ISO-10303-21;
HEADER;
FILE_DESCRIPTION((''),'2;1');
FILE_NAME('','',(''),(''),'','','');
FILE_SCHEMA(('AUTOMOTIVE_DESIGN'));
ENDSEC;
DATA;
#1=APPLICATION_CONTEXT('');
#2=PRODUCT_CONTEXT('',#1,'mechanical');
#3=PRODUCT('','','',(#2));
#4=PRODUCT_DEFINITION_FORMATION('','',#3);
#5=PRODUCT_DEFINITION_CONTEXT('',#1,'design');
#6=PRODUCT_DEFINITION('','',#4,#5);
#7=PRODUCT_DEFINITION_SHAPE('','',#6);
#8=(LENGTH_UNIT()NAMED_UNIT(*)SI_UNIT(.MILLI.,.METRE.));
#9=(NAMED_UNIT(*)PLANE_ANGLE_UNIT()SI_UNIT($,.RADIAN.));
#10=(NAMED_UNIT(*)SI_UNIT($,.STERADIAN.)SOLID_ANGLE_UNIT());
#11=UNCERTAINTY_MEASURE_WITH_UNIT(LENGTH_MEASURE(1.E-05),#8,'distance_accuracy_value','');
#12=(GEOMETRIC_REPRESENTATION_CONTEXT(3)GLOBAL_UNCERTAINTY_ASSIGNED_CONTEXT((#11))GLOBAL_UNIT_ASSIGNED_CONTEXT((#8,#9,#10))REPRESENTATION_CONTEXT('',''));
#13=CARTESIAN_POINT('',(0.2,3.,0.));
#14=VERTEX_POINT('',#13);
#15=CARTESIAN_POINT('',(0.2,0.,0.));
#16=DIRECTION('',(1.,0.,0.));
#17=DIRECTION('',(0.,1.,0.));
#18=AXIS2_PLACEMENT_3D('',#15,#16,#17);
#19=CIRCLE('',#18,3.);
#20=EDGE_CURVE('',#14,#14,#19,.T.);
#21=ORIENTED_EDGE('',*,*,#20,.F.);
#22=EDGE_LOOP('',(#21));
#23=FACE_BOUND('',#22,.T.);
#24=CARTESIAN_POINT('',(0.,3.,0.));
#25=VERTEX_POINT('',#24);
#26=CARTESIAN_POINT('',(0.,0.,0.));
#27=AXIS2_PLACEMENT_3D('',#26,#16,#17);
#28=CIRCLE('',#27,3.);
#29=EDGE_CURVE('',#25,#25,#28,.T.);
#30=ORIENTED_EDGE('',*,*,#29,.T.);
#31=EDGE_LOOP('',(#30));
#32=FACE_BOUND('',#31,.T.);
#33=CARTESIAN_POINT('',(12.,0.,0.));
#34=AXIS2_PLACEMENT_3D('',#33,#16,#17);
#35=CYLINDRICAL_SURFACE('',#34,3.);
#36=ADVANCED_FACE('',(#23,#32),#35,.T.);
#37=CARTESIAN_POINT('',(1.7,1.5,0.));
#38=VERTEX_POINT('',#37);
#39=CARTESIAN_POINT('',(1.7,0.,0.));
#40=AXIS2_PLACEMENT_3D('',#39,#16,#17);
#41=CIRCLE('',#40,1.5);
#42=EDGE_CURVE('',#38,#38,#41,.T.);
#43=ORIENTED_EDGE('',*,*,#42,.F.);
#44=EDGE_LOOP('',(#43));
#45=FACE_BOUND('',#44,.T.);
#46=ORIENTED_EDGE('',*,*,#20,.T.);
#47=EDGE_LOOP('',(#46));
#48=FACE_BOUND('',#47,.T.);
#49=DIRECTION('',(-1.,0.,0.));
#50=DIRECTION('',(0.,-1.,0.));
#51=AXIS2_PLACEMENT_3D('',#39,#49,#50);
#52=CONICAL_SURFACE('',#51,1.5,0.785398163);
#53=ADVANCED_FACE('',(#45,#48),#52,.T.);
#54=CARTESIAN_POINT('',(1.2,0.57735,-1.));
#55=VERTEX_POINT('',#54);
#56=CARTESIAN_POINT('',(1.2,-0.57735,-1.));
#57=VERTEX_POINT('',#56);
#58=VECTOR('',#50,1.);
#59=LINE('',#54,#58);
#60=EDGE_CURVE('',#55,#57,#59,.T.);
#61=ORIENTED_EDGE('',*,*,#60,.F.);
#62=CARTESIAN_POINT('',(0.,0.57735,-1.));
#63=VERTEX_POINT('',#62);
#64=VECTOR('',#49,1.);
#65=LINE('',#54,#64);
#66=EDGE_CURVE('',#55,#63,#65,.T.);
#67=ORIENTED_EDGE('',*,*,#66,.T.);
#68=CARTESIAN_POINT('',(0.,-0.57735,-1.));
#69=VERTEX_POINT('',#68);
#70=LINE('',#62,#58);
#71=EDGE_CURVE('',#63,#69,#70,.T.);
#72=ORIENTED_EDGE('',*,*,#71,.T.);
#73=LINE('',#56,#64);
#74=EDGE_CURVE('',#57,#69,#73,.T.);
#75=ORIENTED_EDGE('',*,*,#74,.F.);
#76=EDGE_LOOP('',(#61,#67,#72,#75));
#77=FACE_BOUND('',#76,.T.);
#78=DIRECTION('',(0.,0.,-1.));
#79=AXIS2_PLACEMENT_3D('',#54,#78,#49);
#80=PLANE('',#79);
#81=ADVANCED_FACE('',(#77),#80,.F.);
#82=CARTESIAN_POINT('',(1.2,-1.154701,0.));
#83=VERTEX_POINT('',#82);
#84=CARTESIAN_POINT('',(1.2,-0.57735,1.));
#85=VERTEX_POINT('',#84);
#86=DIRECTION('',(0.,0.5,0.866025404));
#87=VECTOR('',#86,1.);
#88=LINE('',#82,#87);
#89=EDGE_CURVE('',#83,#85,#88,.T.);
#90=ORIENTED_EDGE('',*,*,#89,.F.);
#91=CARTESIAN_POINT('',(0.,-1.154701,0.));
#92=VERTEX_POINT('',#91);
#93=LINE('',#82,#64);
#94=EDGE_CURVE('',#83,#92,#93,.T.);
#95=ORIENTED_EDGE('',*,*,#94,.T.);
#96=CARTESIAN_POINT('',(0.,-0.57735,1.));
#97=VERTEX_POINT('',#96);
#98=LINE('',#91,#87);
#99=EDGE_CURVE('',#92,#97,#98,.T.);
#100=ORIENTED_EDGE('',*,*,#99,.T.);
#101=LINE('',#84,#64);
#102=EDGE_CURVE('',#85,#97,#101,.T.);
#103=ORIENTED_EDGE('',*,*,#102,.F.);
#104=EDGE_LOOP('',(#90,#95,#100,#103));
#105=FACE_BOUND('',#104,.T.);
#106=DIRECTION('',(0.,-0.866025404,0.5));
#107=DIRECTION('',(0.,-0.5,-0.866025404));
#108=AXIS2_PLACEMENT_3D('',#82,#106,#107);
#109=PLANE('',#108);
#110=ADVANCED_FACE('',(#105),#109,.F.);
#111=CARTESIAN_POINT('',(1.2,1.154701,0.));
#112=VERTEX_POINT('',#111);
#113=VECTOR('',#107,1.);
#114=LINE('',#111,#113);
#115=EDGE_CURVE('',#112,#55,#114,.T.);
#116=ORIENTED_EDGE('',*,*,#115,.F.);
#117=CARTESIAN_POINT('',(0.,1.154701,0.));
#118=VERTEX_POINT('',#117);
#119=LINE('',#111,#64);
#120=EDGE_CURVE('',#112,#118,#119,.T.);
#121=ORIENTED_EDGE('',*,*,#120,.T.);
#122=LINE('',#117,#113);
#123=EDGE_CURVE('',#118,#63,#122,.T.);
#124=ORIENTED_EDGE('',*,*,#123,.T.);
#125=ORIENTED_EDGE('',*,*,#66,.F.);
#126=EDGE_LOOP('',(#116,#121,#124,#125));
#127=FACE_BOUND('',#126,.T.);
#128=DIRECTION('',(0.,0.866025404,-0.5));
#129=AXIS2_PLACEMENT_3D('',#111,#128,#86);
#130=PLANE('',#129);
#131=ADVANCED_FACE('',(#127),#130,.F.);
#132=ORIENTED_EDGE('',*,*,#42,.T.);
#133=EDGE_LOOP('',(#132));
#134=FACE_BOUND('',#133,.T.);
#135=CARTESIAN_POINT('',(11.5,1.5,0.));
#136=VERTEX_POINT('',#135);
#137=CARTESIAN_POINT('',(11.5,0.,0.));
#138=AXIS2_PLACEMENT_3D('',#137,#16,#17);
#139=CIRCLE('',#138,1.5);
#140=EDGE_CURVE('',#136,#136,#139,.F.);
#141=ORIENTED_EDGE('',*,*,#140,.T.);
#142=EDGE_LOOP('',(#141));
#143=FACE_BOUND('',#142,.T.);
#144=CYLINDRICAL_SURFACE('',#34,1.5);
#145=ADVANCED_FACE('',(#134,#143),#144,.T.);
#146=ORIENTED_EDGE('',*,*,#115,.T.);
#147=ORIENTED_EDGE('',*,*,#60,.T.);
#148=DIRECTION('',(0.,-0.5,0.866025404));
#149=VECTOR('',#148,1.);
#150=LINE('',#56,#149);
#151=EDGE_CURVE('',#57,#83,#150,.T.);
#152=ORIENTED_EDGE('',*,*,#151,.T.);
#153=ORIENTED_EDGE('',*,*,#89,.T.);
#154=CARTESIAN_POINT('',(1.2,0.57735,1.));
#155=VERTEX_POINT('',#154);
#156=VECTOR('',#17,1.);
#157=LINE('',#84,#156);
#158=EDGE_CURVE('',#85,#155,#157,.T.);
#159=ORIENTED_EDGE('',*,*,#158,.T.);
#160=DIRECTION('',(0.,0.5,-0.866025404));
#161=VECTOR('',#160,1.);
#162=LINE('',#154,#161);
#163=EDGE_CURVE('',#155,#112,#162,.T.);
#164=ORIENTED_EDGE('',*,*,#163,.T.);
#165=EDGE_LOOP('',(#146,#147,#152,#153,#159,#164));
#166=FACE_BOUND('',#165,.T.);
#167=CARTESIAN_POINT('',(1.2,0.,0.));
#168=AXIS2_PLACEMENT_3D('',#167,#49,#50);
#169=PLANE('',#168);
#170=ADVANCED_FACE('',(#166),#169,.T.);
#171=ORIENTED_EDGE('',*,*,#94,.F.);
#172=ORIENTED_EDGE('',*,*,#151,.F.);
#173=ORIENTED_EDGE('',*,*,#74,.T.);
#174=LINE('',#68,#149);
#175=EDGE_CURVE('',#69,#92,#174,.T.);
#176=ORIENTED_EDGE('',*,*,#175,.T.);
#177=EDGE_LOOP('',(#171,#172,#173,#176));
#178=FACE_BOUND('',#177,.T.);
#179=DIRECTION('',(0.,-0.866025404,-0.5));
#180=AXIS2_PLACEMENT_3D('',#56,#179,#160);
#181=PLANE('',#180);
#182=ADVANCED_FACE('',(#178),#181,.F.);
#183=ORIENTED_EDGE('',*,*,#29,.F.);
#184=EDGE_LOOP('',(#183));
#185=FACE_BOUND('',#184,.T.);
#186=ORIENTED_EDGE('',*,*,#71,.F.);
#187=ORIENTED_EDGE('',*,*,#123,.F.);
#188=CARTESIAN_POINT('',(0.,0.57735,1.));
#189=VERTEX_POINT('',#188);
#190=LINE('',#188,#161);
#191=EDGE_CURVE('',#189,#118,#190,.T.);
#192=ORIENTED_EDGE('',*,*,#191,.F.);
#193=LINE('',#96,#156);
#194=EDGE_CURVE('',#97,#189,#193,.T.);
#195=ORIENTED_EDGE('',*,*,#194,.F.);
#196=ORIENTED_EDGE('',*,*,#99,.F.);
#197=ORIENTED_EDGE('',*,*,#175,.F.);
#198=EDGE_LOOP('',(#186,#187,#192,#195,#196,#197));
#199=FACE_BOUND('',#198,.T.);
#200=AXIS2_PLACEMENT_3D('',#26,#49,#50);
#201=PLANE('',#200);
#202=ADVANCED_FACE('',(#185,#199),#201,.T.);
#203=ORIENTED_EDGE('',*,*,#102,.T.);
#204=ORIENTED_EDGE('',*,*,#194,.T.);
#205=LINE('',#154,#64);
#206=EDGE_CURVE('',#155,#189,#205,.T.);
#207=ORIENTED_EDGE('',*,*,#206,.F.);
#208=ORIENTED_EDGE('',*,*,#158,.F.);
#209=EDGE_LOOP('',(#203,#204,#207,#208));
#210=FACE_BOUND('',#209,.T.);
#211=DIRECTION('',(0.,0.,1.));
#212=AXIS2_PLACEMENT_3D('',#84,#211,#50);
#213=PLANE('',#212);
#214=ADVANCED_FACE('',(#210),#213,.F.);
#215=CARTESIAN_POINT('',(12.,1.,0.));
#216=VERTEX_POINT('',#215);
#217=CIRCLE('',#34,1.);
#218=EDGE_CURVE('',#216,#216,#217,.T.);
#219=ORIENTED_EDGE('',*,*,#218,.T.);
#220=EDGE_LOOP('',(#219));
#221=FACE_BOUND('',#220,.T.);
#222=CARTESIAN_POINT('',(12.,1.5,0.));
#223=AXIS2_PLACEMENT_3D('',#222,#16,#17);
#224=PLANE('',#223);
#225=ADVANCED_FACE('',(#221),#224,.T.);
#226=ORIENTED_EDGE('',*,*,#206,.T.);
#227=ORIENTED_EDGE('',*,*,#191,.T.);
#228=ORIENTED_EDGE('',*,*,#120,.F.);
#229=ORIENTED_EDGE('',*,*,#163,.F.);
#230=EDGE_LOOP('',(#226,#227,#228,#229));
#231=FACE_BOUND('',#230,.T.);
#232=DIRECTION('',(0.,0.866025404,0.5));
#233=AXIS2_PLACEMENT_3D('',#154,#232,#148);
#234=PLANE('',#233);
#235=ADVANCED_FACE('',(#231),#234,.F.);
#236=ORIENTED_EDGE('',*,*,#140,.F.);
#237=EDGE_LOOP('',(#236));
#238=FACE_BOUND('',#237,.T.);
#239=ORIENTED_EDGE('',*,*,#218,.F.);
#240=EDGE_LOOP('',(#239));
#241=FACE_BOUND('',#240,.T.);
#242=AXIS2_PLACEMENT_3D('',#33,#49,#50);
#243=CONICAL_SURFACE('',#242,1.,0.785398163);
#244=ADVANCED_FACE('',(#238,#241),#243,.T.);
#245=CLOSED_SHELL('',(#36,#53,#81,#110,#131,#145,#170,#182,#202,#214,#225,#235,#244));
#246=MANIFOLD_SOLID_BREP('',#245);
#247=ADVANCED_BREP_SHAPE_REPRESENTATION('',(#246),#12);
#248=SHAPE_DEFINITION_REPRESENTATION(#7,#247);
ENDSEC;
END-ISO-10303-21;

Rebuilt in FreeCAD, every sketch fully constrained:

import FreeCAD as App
import Part
import Sketcher

V = App.Vector
Q = App.Units.Quantity


def edges_at(feature, points):
    """Names of the edges that pass closest to the given points."""
    edges = feature.Shape.Edges
    near = lambda p: min(range(len(edges)), key=lambda i: edges[i].distToShape(Part.Vertex(*p))[0])
    return sorted({f"Edge{near(p) + 1}" for p in points})


def add_polygon(sketch, points):
    """Adds a closed chain of lines whose ends are joined by coincident constraints."""
    first, n = sketch.GeometryCount, len(points)
    for a, b in zip(points, points[1:] + points[:1]):
        sketch.addGeometry(Part.LineSegment(App.Vector(*a, 0), App.Vector(*b, 0)), False)
    for i in range(n):
        sketch.addConstraint(Sketcher.Constraint("Coincident", first + i, 2, first + (i + 1) % n, 1))

doc = App.newDocument("Part")
body = doc.addObject("PartDesign::Body", "Body")

sketch1 = doc.addObject("Sketcher::SketchObject", "Sketch")
body.addObject(sketch1)
sketch1.AttachmentSupport = (doc.XY_Plane, [""])
sketch1.MapMode = "FlatFace"
add_polygon(sketch1, [(0, 3), (0, 0), (12, 0), (12, 1.5), (1.7, 1.5), (0.2, 3)])
sketch1.addConstraint(Sketcher.Constraint("Vertical", 0))
sketch1.addConstraint(Sketcher.Constraint("Horizontal", 1))
sketch1.addConstraint(Sketcher.Constraint("Vertical", 2))
sketch1.addConstraint(Sketcher.Constraint("Horizontal", 3))
sketch1.addConstraint(Sketcher.Constraint("Horizontal", 5))
sketch1.addConstraint(Sketcher.Constraint("Coincident", 0, 2, -1, 1))
sketch1.addConstraint(Sketcher.Constraint("DistanceX", 1, 1, 1, 2, Q("12 mm")))
sketch1.addConstraint(Sketcher.Constraint("DistanceY", 0, 2, 0, 1, Q("3 mm")))
sketch1.addConstraint(Sketcher.Constraint("Angle", 4, Q("135 deg")))
sketch1.addConstraint(Sketcher.Constraint("DistanceX", 3, 2, 3, 1, Q("10.3 mm")))
sketch1.addConstraint(Sketcher.Constraint("DistanceX", 5, 2, 5, 1, Q("0.2 mm")))
revolution = doc.addObject("PartDesign::Revolution", "Revolution")
body.addObject(revolution)
revolution.Profile = sketch1
revolution.ReferenceAxis = (sketch1, ["H_Axis"])
revolution.Angle = 360
doc.recompute()

chamfer = doc.addObject("PartDesign::Chamfer", "Chamfer")
body.addObject(chamfer)
chamfer.Base = (revolution, edges_at(revolution, [(12, -1.5, 0)]))
chamfer.Size = 0.5

sketch2 = doc.addObject("Sketcher::SketchObject", "Sketch001")
body.addObject(sketch2)
sketch2.AttachmentSupport = (doc.YZ_Plane, [""])
sketch2.MapMode = "FlatFace"
add_polygon(sketch2, [(1.2, 0), (0.6, -1), (-0.6, -1), (-1.2, 0), (-0.6, 1), (0.6, 1)])
sketch2.addConstraint(Sketcher.Constraint("Horizontal", 1))
sketch2.addConstraint(Sketcher.Constraint("Horizontal", 4))
sketch2.addConstraint(Sketcher.Constraint("Symmetric", 0, 2, 3, 2, -1, 1))
sketch2.addConstraint(Sketcher.Constraint("Symmetric", 2, 2, 5, 2, -1, 1))
sketch2.addConstraint(Sketcher.Constraint("PointOnObject", 2, 2, -1))
sketch2.addConstraint(Sketcher.Constraint("Parallel", 2, 5))
sketch2.addConstraint(Sketcher.Constraint("Vertical", 1, 2, 3, 2))
sketch2.addConstraint(Sketcher.Constraint("Angle", 0, Q("-120 deg")))
sketch2.addConstraint(Sketcher.Constraint("DistanceY", 0, 2, -1, 1, Q("1 mm")))
sketch2.addConstraint(Sketcher.Constraint("DistanceX", 1, 2, 1, 1, Q("1.154701 mm")))
pocket1 = doc.addObject("PartDesign::Pocket", "Pocket")
body.addObject(pocket1)
pocket1.Profile = sketch2
pocket1.Length = 1.2
pocket1.Reversed = True

doc.recompute()
